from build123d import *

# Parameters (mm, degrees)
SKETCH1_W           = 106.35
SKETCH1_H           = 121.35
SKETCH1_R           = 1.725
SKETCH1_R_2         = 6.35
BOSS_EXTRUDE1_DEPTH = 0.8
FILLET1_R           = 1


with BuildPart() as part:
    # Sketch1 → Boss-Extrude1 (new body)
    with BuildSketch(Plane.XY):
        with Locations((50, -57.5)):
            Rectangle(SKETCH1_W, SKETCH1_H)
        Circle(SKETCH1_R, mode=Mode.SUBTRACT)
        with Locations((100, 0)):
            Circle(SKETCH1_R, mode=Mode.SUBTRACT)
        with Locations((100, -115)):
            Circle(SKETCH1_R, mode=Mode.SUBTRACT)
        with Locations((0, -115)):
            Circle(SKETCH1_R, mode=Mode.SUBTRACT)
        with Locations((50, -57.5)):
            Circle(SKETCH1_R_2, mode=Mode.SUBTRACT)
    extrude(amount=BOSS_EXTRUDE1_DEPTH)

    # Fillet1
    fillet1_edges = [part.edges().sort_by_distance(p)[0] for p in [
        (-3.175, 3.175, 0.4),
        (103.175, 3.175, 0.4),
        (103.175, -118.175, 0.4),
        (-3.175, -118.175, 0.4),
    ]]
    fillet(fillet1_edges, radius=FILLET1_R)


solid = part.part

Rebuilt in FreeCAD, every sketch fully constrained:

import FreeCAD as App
import Part
import Sketcher


def edges_at(feature, points):
    """Names of the edges that pass closest to the given points."""
    edges = feature.Shape.Edges
    near = lambda p: min(range(len(edges)), key=lambda i: edges[i].distToShape(Part.Vertex(*p))[0])
    return sorted({f"Edge{near(p) + 1}" for p in points})

doc = App.newDocument("Part")
body = doc.addObject("PartDesign::Body", "Body")

# Sketch on XY plane
sketch1 = body.newObject("Sketcher::SketchObject", "Sketch")
sketch1.AttachmentSupport = (doc.getObject("XY_Plane"), [""])
sketch1.MapMode = "FlatFace"
sketch1.addGeometry(Part.LineSegment(App.Vector(-3.2, 3.2, 0), App.Vector(-3.2, -118.2, 0)), False)
sketch1.addGeometry(Part.LineSegment(App.Vector(-3.2, -118.2, 0), App.Vector(103.2, -118.2, 0)), False)
sketch1.addGeometry(Part.LineSegment(App.Vector(103.2, -118.2, 0), App.Vector(103.2, 3.2, 0)), False)
sketch1.addGeometry(Part.LineSegment(App.Vector(103.2, 3.2, 0), App.Vector(-3.2, 3.2, 0)), False)
sketch1.addGeometry(Part.Circle(App.Vector(0, -115, 0), App.Vector(0, 0, 1), 1.7), False)
sketch1.addGeometry(Part.Circle(App.Vector(100, -115, 0), App.Vector(0, 0, 1), 1.7), False)
sketch1.addGeometry(Part.Circle(App.Vector(50, -57.5, 0), App.Vector(0, 0, 1), 6.3), False)
sketch1.addGeometry(Part.Circle(App.Vector(0, 0, 0), App.Vector(0, 0, 1), 1.7), False)
sketch1.addGeometry(Part.Circle(App.Vector(100, 0, 0), App.Vector(0, 0, 1), 1.7), False)
sketch1.addConstraint(Sketcher.Constraint("Coincident", 0, 2, 1, 1))
sketch1.addConstraint(Sketcher.Constraint("Coincident", 1, 2, 2, 1))
sketch1.addConstraint(Sketcher.Constraint("Coincident", 2, 2, 3, 1))
sketch1.addConstraint(Sketcher.Constraint("Coincident", 3, 2, 0, 1))
sketch1.addConstraint(Sketcher.Constraint("Vertical", 0))
sketch1.addConstraint(Sketcher.Constraint("Horizontal", 1))
sketch1.addConstraint(Sketcher.Constraint("Vertical", 2))
sketch1.addConstraint(Sketcher.Constraint("Horizontal", 3))
sketch1.addConstraint(Sketcher.Constraint("Coincident", 7, 3, -1, 1))
sketch1.addConstraint(Sketcher.Constraint("Equal", 4, 5))
sketch1.addConstraint(Sketcher.Constraint("Equal", 5, 7))
sketch1.addConstraint(Sketcher.Constraint("Equal", 7, 8))
sketch1.addConstraint(Sketcher.Constraint("PointOnObject", 4, 3, -2))
sketch1.addConstraint(Sketcher.Constraint("PointOnObject", 8, 3, -1))
sketch1.addConstraint(Sketcher.Constraint("Horizontal", 4, 3, 5, 3))
sketch1.addConstraint(Sketcher.Constraint("Vertical", 5, 3, 8, 3))
sketch1.addConstraint(Sketcher.Constraint("Diameter", 6, 12.7))
sketch1.addConstraint(Sketcher.Constraint("Diameter", 4, 3.45))
sketch1.addConstraint(Sketcher.Constraint("DistanceY", 4, 3, -1, 1, 115.0))
sketch1.addConstraint(Sketcher.Constraint("DistanceX", -1, 1, 5, 3, 100.0))
sketch1.addConstraint(Sketcher.Constraint("DistanceX", -1, 1, 6, 3, 50.0))
sketch1.addConstraint(Sketcher.Constraint("DistanceX", 1, 1, 1, 2, 106.35))
sketch1.addConstraint(Sketcher.Constraint("DistanceY", 0, 2, 0, 1, 121.35))
sketch1.addConstraint(Sketcher.Constraint("DistanceY", 6, 3, -1, 1, 57.5))
sketch1.addConstraint(Sketcher.Constraint("DistanceX", 0, 2, -1, 1, 3.175))
sketch1.addConstraint(Sketcher.Constraint("DistanceY", 0, 2, -1, 1, 118.175))
pad1 = body.newObject("PartDesign::Pad", "Pad")
pad1.Profile = sketch1
pad1.Length = 0.8
doc.recompute()

fillet = body.newObject("PartDesign::Fillet", "Fillet")
fillet.Base = (pad1, edges_at(pad1, [
    (-3.175, 3.175, 0.4),
    (103.175, 3.175, 0.4),
    (103.175, -118.175, 0.4),
    (-3.175, -118.175, 0.4),
]))
fillet.Radius = 1

doc.recompute()
